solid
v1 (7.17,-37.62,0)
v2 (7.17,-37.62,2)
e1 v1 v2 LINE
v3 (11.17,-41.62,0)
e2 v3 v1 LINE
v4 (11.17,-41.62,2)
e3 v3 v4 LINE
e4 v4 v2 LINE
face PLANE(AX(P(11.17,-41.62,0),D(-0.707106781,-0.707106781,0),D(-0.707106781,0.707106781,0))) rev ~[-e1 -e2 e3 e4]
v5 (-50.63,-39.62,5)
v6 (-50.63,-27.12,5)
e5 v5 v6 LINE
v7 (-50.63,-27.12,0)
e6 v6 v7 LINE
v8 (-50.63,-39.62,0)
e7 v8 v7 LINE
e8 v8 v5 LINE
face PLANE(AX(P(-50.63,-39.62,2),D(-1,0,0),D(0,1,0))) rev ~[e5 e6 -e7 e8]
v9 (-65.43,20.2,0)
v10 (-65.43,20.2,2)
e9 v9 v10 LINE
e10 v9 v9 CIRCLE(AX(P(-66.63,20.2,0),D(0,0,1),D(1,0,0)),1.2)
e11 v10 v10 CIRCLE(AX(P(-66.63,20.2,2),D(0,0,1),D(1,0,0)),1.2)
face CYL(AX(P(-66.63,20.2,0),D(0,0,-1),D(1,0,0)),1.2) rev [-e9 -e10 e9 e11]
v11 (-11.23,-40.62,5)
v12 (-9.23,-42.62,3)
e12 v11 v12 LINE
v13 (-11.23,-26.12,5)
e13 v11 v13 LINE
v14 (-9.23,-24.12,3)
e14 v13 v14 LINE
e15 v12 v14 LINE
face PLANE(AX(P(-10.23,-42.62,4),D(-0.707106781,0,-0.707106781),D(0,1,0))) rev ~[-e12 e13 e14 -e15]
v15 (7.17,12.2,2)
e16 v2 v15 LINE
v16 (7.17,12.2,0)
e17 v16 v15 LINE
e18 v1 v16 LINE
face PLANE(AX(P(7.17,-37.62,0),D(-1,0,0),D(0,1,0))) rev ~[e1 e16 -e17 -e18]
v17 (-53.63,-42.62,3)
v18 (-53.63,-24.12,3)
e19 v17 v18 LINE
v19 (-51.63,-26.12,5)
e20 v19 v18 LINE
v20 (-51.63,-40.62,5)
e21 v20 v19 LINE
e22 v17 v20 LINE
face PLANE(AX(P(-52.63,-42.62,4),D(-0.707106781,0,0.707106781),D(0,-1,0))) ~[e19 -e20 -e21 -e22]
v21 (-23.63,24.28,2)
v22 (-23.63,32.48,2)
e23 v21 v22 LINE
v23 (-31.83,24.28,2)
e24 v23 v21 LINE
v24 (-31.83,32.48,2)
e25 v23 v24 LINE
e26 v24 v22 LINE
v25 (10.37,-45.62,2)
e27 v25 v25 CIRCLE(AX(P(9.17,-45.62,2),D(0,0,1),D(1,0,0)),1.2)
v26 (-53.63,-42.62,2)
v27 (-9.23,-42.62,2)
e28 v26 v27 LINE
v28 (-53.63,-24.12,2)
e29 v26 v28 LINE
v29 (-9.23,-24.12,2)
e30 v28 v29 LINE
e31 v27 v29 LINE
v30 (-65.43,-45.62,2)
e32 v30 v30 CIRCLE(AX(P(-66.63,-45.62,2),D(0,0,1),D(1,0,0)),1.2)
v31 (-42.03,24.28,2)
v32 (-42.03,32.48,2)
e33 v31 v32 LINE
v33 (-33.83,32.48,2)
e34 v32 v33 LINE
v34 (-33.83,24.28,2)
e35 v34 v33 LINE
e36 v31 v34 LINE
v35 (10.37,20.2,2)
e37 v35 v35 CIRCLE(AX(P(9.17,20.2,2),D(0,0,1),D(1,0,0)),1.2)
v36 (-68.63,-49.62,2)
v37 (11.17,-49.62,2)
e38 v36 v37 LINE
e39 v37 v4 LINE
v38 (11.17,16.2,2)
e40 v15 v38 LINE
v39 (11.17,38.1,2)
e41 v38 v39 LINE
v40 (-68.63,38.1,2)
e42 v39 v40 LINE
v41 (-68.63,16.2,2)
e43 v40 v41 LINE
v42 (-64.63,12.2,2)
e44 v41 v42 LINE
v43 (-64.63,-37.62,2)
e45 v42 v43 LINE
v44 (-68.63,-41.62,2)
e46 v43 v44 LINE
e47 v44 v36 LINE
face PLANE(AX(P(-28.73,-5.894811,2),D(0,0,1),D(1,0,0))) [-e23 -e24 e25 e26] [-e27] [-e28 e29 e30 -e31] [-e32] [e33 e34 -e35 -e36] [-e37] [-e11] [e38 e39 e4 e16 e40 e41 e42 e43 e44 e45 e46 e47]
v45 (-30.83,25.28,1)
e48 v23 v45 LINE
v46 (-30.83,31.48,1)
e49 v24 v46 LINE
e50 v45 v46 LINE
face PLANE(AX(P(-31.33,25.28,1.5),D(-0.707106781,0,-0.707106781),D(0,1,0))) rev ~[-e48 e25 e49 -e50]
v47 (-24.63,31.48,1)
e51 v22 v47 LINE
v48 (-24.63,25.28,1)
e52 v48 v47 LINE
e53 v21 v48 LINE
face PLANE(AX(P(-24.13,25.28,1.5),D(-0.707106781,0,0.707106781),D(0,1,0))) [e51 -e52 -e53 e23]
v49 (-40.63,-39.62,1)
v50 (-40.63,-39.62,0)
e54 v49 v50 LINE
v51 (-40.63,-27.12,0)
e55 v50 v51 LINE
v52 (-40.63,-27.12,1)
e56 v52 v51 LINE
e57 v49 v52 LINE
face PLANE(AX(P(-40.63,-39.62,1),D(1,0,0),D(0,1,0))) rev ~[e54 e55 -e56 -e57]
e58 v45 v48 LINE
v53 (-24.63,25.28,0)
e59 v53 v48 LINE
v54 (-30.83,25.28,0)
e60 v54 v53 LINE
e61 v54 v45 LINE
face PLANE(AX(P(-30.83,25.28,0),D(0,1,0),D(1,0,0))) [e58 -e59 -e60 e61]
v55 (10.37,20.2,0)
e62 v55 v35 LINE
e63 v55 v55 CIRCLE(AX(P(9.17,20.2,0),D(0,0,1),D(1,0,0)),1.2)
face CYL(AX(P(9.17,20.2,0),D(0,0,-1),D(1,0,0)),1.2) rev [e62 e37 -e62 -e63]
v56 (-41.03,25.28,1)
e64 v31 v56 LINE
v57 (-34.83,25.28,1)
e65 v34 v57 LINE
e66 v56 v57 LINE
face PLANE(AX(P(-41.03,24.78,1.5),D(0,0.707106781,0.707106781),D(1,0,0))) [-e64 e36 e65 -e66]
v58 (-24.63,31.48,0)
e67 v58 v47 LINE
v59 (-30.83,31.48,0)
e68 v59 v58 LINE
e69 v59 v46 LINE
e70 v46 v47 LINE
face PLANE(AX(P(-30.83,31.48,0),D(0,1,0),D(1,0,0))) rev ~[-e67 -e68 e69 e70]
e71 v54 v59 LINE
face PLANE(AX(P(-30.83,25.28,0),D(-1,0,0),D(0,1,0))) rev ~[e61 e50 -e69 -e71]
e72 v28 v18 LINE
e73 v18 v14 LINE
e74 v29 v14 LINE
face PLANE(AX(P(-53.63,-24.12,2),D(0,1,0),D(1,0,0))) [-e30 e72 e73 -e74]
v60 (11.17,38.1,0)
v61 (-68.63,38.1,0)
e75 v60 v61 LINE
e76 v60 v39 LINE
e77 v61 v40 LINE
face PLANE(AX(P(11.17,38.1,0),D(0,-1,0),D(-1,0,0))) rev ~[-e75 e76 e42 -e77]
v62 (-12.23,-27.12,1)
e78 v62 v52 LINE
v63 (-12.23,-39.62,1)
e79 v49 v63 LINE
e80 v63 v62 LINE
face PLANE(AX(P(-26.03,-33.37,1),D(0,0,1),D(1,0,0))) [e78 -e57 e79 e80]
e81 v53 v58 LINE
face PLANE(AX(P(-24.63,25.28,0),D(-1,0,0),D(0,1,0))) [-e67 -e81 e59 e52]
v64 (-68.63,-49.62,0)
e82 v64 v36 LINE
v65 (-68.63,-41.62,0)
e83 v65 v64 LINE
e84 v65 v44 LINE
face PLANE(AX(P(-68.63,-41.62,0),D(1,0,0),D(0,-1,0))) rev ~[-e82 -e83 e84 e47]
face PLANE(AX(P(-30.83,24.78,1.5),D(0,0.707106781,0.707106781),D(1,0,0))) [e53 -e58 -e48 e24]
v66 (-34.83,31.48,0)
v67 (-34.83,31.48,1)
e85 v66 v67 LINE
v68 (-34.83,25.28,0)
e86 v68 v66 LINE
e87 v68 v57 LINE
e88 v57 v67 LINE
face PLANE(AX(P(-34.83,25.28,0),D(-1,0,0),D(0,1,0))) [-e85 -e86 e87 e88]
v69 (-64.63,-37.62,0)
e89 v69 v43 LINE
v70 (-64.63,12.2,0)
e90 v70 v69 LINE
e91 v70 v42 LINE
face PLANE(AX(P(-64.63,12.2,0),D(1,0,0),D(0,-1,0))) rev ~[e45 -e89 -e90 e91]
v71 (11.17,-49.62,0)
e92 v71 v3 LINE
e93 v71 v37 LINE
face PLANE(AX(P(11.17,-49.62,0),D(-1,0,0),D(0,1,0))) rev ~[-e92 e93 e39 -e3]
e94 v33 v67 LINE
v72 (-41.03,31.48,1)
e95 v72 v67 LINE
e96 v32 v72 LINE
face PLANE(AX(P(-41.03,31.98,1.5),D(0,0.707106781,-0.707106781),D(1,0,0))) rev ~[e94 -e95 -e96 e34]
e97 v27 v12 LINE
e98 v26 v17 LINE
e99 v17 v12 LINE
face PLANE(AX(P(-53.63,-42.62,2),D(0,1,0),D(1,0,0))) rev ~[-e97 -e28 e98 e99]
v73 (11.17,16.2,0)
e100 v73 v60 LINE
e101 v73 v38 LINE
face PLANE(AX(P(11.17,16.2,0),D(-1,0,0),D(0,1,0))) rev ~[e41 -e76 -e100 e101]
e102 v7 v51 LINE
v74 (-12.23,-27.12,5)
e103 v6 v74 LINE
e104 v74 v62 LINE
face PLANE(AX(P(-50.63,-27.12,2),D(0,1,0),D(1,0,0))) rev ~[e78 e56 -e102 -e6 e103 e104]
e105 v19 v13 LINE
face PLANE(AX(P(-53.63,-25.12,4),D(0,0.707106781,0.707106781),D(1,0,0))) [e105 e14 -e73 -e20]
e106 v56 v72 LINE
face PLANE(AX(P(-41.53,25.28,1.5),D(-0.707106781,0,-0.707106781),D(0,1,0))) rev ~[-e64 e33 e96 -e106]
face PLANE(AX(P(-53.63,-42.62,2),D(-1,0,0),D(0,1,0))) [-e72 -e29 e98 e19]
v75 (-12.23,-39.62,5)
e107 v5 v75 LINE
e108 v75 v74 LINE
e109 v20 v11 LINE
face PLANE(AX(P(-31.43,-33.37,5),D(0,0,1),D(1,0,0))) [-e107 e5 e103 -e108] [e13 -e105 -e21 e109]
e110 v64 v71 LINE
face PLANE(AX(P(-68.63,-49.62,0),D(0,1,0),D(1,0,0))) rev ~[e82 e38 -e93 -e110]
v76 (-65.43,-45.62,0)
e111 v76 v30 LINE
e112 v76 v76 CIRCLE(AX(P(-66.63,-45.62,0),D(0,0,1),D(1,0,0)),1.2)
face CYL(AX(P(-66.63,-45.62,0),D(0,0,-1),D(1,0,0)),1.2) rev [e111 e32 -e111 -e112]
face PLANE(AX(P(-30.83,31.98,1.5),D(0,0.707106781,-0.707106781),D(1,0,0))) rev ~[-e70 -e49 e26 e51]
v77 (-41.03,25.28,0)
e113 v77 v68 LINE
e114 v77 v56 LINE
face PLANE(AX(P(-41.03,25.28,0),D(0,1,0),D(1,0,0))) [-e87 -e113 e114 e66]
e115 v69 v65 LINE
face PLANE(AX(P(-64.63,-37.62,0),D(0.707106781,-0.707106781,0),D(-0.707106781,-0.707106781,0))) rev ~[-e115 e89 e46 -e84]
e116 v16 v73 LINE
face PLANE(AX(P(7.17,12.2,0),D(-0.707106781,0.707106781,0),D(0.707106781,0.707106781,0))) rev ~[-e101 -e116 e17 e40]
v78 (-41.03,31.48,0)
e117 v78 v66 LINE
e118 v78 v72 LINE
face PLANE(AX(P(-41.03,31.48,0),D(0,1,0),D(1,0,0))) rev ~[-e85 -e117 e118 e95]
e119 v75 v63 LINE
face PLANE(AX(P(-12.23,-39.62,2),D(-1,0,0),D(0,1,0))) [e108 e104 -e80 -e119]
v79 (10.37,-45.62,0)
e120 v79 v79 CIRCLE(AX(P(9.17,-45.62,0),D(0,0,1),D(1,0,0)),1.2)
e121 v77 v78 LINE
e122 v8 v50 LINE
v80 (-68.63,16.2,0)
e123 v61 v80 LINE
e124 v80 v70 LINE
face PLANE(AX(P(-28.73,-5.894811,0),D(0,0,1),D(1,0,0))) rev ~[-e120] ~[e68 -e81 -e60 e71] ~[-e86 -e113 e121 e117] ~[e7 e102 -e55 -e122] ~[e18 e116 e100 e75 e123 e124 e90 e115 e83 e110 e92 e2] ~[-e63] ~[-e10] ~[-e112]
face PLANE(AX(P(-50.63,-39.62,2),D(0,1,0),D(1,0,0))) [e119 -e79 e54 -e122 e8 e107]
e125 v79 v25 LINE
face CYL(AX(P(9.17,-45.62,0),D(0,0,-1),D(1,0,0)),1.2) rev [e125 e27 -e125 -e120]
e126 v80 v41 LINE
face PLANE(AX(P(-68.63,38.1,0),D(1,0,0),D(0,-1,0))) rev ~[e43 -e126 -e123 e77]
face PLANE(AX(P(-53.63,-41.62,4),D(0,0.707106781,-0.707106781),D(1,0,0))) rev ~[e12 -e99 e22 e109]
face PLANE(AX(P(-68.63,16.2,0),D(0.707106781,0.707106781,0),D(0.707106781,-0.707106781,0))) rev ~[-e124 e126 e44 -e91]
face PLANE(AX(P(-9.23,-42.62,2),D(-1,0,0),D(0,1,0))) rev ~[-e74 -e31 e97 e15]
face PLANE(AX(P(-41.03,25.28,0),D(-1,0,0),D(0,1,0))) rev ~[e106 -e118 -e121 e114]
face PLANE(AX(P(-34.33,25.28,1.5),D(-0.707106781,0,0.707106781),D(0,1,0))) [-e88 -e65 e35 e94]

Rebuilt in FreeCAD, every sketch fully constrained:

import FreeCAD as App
import Part
import Sketcher
Q = App.Units.Quantity


def edges_at(feature, points):
    """Names of the edges that pass closest to the given points."""
    edges = feature.Shape.Edges
    near = lambda p: min(range(len(edges)), key=lambda i: edges[i].distToShape(Part.Vertex(*p))[0])
    return sorted({f"Edge{near(p) + 1}" for p in points})


def add_polygon(sketch, points):
    """Adds a closed chain of lines whose ends are joined by coincident constraints."""
    first, n = sketch.GeometryCount, len(points)
    for a, b in zip(points, points[1:] + points[:1]):
        sketch.addGeometry(Part.LineSegment(App.Vector(*a, 0), App.Vector(*b, 0)), False)
    for i in range(n):
        sketch.addConstraint(Sketcher.Constraint("Coincident", first + i, 2, first + (i + 1) % n, 1))

doc = App.newDocument("Part")
body = doc.addObject("PartDesign::Body", "Body")

# Sketch on XY plane
sketch1 = body.newObject("Sketcher::SketchObject", "Sketch")
sketch1.AttachmentSupport = (doc.getObject("XY_Plane"), [""])
sketch1.MapMode = "FlatFace"
add_polygon(sketch1, [(-68.63, 16.2), (-64.63, 12.2), (-64.63, -37.62), (-68.63, -41.62), (-68.63, -49.62), (11.17, -49.62), (11.17, -41.62), (7.17, -37.62), (7.17, 12.2), (11.17, 16.2), (11.17, 38.1), (-68.63, 38.1)])  # lines 0-11
sketch1.addGeometry(Part.Circle(App.Vector(-66.63, -45.62, 0), App.Vector(0, 0, 1), 1.2), False)  # 12
sketch1.addGeometry(Part.Circle(App.Vector(9.17, -45.62, 0), App.Vector(0, 0, 1), 1.2), False)  # 13
sketch1.addGeometry(Part.Circle(App.Vector(-66.63, 20.2, 0), App.Vector(0, 0, 1), 1.2), False)  # 14
add_polygon(sketch1, [(-34.83, 25.28), (-41.03, 25.28), (-41.03, 31.48), (-34.83, 31.48)])  # lines 15-18
add_polygon(sketch1, [(-24.63, 25.28), (-30.83, 25.28), (-30.83, 31.48), (-24.63, 31.48)])  # lines 19-22
sketch1.addGeometry(Part.Circle(App.Vector(9.17, 20.2, 0), App.Vector(0, 0, 1), 1.2), False)  # 23
sketch1.addConstraint(Sketcher.Constraint("Vertical", 1))
sketch1.addConstraint(Sketcher.Constraint("Vertical", 3))
sketch1.addConstraint(Sketcher.Constraint("Horizontal", 4))
sketch1.addConstraint(Sketcher.Constraint("Vertical", 5))
sketch1.addConstraint(Sketcher.Constraint("Vertical", 7))
sketch1.addConstraint(Sketcher.Constraint("Vertical", 9))
sketch1.addConstraint(Sketcher.Constraint("Horizontal", 10))
sketch1.addConstraint(Sketcher.Constraint("Vertical", 11))
sketch1.addConstraint(Sketcher.Constraint("Horizontal", 15))
sketch1.addConstraint(Sketcher.Constraint("Vertical", 16))
sketch1.addConstraint(Sketcher.Constraint("Horizontal", 17))
sketch1.addConstraint(Sketcher.Constraint("Vertical", 18))
sketch1.addConstraint(Sketcher.Constraint("Horizontal", 19))
sketch1.addConstraint(Sketcher.Constraint("Vertical", 20))
sketch1.addConstraint(Sketcher.Constraint("Horizontal", 21))
sketch1.addConstraint(Sketcher.Constraint("Vertical", 22))
sketch1.addConstraint(Sketcher.Constraint("Equal", 12, 13))
sketch1.addConstraint(Sketcher.Constraint("Equal", 13, 14))
sketch1.addConstraint(Sketcher.Constraint("Equal", 14, 23))
sketch1.addConstraint(Sketcher.Constraint("Perpendicular", 0, 2))
sketch1.addConstraint(Sketcher.Constraint("Perpendicular", 2, 6))
sketch1.addConstraint(Sketcher.Constraint("Perpendicular", 6, 8))
sketch1.addConstraint(Sketcher.Constraint("Horizontal", 12, 3, 13, 3))
sketch1.addConstraint(Sketcher.Constraint("Horizontal", 14, 3, 23, 3))
sketch1.addConstraint(Sketcher.Constraint("Horizontal", 2, 2, 5, 2))
sketch1.addConstraint(Sketcher.Constraint("Horizontal", 1, 2, 6, 2))
sketch1.addConstraint(Sketcher.Constraint("Horizontal", 0, 2, 7, 2))
sketch1.addConstraint(Sketcher.Constraint("Horizontal", 8, 2, 11, 2))
sketch1.addConstraint(Sketcher.Constraint("Horizontal", 18, 2, 19, 2))
sketch1.addConstraint(Sketcher.Constraint("Horizontal", 17, 2, 20, 2))
sketch1.addConstraint(Sketcher.Constraint("Vertical", 12, 3, 14, 3))
sketch1.addConstraint(Sketcher.Constraint("Vertical", 13, 3, 23, 3))
sketch1.addConstraint(Sketcher.Constraint("Vertical", 5, 2, 8, 2))
sketch1.addConstraint(Sketcher.Constraint("Vertical", 3, 2, 10, 2))
sketch1.addConstraint(Sketcher.Constraint("Equal", 17, 19))
sketch1.addConstraint(Sketcher.Constraint("Equal", 21, 16))
sketch1.addConstraint(Sketcher.Constraint("Diameter", 12, Q("2.4 mm")))
sketch1.addConstraint(Sketcher.Constraint("DistanceY", 3, 2, 3, 1, Q("8 mm")))
sketch1.addConstraint(Sketcher.Constraint("DistanceX", 4, 1, 4, 2, Q("79.8 mm")))
sketch1.addConstraint(Sketcher.Constraint("DistanceX", 15, 2, 15, 1, Q("6.2 mm")))
sketch1.addConstraint(Sketcher.Constraint("DistanceY", 9, 1, 9, 2, Q("21.9 mm")))
sketch1.addConstraint(Sketcher.Constraint("DistanceX", 14, 3, 0, 2, Q("2 mm")))
sketch1.addConstraint(Sketcher.Constraint("DistanceY", 0, 2, 14, 3, Q("8 mm")))
sketch1.addConstraint(Sketcher.Constraint("DistanceY", 12, 3, 1, 2, Q("8 mm")))
sketch1.addConstraint(Sketcher.Constraint("DistanceX", 2, 2, 12, 3, Q("2 mm")))
sketch1.addConstraint(Sketcher.Constraint("DistanceX", 13, 3, 4, 2, Q("2 mm")))
sketch1.addConstraint(Sketcher.Constraint("DistanceX", 18, 2, 19, 2, Q("4 mm")))
sketch1.addConstraint(Sketcher.Constraint("DistanceY", 1, 2, 1, 1, Q("49.82 mm")))
sketch1.addConstraint(Sketcher.Constraint("DistanceY", -1, 1, 14, 3, Q("20.2 mm")))
sketch1.addConstraint(Sketcher.Constraint("DistanceX", 14, 3, 15, 2, Q("25.6 mm")))
sketch1.addConstraint(Sketcher.Constraint("DistanceX", 12, 3, -1, 1, Q("66.63 mm")))
sketch1.addConstraint(Sketcher.Constraint("DistanceY", -1, 1, 15, 2, Q("25.28 mm")))
pad1 = body.newObject("PartDesign::Pad", "Pad")
pad1.Profile = sketch1
pad1.Length = 2

# Sketch on XY plane
sketch2 = body.newObject("Sketcher::SketchObject", "Sketch001")
sketch2.AttachmentSupport = (doc.getObject("XY_Plane"), [""])
sketch2.MapMode = "FlatFace"
sketch2.AttachmentOffset = App.Placement(App.Vector(0, 0, 2), App.Rotation())
add_polygon(sketch2, [(-12.23, -27.12), (-50.63, -27.12), (-50.63, -39.62), (-12.23, -39.62)])  # lines 0-3
sketch2.addConstraint(Sketcher.Constraint("Horizontal", 0))
sketch2.addConstraint(Sketcher.Constraint("Vertical", 1))
sketch2.addConstraint(Sketcher.Constraint("Horizontal", 2))
sketch2.addConstraint(Sketcher.Constraint("Vertical", 3))
sketch2.addConstraint(Sketcher.Constraint("DistanceX", 0, 2, 0, 1, Q("38.4 mm")))
sketch2.addConstraint(Sketcher.Constraint("DistanceY", 1, 2, 1, 1, Q("12.5 mm")))
sketch2.addConstraint(Sketcher.Constraint("DistanceX", 0, 2, -1, 1, Q("50.63 mm")))
sketch2.addConstraint(Sketcher.Constraint("DistanceY", 0, 2, -1, 1, Q("27.12 mm")))
pocket1 = body.newObject("PartDesign::Pocket", "Pocket")
pocket1.Profile = sketch2
pocket1.Length = 1

# Sketch on XY plane
sketch3 = body.newObject("Sketcher::SketchObject", "Sketch002")
sketch3.AttachmentSupport = (doc.getObject("XY_Plane"), [""])
sketch3.MapMode = "FlatFace"
sketch3.AttachmentOffset = App.Placement(App.Vector(0, 0, 1), App.Rotation())
add_polygon(sketch3, [(-50.63, -27.12), (-50.63, -39.62), (-40.63, -39.62), (-40.63, -27.12)])  # lines 0-3
sketch3.addConstraint(Sketcher.Constraint("Vertical", 0))
sketch3.addConstraint(Sketcher.Constraint("Horizontal", 1))
sketch3.addConstraint(Sketcher.Constraint("Vertical", 2))
sketch3.addConstraint(Sketcher.Constraint("Horizontal", 3))
sketch3.addConstraint(Sketcher.Constraint("DistanceX", 1, 1, 1, 2, Q("10 mm")))
sketch3.addConstraint(Sketcher.Constraint("DistanceY", 0, 2, 0, 1, Q("12.5 mm")))
sketch3.addConstraint(Sketcher.Constraint("DistanceX", 0, 2, -1, 1, Q("50.63 mm")))
sketch3.addConstraint(Sketcher.Constraint("DistanceY", 0, 2, -1, 1, Q("39.62 mm")))
pocket2 = body.newObject("PartDesign::Pocket", "Pocket001")
pocket2.Profile = sketch3
pocket2.Length = 1
doc.recompute()

chamfer = body.newObject("PartDesign::Chamfer", "Chamfer")
chamfer.Base = (pocket2, edges_at(pocket2, [
    (-37.93, 25.28, 2),
    (-41.03, 28.38, 2),
    (-37.93, 31.48, 2),
    (-27.73, 31.48, 2),
    (-24.63, 28.38, 2),
    (-27.73, 25.28, 2),
    (-30.83, 28.38, 2),
    (-34.83, 28.38, 2),
]))
chamfer.Size = 1

# Sketch on XY plane
sketch4 = body.newObject("Sketcher::SketchObject", "Sketch003")
sketch4.AttachmentSupport = (doc.getObject("XY_Plane"), [""])
sketch4.MapMode = "FlatFace"
sketch4.AttachmentOffset = App.Placement(App.Vector(0, 0, 2), App.Rotation())
add_polygon(sketch4, [(-53.63, -24.12), (-53.63, -42.62), (-9.23, -42.62), (-9.23, -24.12)])  # lines 0-3
add_polygon(sketch4, [(-12.23, -39.62), (-50.63, -39.62), (-50.63, -27.12), (-12.23, -27.12)])  # lines 4-7
sketch4.addConstraint(Sketcher.Constraint("Vertical", 0))
sketch4.addConstraint(Sketcher.Constraint("Horizontal", 1))
sketch4.addConstraint(Sketcher.Constraint("Vertical", 2))
sketch4.addConstraint(Sketcher.Constraint("Horizontal", 3))
sketch4.addConstraint(Sketcher.Constraint("Horizontal", 4))
sketch4.addConstraint(Sketcher.Constraint("Vertical", 5))
sketch4.addConstraint(Sketcher.Constraint("Horizontal", 6))
sketch4.addConstraint(Sketcher.Constraint("Vertical", 7))
sketch4.addConstraint(Sketcher.Constraint("DistanceX", 1, 1, 1, 2, Q("44.4 mm")))
sketch4.addConstraint(Sketcher.Constraint("DistanceX", 4, 2, 4, 1, Q("38.4 mm")))
sketch4.addConstraint(Sketcher.Constraint("DistanceY", 0, 2, 0, 1, Q("18.5 mm")))
sketch4.addConstraint(Sketcher.Constraint("DistanceY", 5, 1, 5, 2, Q("12.5 mm")))
sketch4.addConstraint(Sketcher.Constraint("DistanceX", 0, 2, 4, 2, Q("3 mm")))
sketch4.addConstraint(Sketcher.Constraint("DistanceY", 0, 2, 4, 2, Q("3 mm")))
sketch4.addConstraint(Sketcher.Constraint("DistanceX", 0, 2, -1, 1, Q("53.63 mm")))
sketch4.addConstraint(Sketcher.Constraint("DistanceY", 0, 2, -1, 1, Q("42.62 mm")))
pad2 = body.newObject("PartDesign::Pad", "Pad001")
pad2.Profile = sketch4
pad2.Length = 3
doc.recompute()

chamfer2 = body.newObject("PartDesign::Chamfer", "Chamfer001")
chamfer2.Base = (pad2, edges_at(pad2, [
    (-31.43, -24.12, 5),
    (-9.23, -33.37, 5),
    (-53.63, -33.37, 5),
    (-31.43, -42.62, 5),
]))
chamfer2.Size = 2

doc.recompute()
